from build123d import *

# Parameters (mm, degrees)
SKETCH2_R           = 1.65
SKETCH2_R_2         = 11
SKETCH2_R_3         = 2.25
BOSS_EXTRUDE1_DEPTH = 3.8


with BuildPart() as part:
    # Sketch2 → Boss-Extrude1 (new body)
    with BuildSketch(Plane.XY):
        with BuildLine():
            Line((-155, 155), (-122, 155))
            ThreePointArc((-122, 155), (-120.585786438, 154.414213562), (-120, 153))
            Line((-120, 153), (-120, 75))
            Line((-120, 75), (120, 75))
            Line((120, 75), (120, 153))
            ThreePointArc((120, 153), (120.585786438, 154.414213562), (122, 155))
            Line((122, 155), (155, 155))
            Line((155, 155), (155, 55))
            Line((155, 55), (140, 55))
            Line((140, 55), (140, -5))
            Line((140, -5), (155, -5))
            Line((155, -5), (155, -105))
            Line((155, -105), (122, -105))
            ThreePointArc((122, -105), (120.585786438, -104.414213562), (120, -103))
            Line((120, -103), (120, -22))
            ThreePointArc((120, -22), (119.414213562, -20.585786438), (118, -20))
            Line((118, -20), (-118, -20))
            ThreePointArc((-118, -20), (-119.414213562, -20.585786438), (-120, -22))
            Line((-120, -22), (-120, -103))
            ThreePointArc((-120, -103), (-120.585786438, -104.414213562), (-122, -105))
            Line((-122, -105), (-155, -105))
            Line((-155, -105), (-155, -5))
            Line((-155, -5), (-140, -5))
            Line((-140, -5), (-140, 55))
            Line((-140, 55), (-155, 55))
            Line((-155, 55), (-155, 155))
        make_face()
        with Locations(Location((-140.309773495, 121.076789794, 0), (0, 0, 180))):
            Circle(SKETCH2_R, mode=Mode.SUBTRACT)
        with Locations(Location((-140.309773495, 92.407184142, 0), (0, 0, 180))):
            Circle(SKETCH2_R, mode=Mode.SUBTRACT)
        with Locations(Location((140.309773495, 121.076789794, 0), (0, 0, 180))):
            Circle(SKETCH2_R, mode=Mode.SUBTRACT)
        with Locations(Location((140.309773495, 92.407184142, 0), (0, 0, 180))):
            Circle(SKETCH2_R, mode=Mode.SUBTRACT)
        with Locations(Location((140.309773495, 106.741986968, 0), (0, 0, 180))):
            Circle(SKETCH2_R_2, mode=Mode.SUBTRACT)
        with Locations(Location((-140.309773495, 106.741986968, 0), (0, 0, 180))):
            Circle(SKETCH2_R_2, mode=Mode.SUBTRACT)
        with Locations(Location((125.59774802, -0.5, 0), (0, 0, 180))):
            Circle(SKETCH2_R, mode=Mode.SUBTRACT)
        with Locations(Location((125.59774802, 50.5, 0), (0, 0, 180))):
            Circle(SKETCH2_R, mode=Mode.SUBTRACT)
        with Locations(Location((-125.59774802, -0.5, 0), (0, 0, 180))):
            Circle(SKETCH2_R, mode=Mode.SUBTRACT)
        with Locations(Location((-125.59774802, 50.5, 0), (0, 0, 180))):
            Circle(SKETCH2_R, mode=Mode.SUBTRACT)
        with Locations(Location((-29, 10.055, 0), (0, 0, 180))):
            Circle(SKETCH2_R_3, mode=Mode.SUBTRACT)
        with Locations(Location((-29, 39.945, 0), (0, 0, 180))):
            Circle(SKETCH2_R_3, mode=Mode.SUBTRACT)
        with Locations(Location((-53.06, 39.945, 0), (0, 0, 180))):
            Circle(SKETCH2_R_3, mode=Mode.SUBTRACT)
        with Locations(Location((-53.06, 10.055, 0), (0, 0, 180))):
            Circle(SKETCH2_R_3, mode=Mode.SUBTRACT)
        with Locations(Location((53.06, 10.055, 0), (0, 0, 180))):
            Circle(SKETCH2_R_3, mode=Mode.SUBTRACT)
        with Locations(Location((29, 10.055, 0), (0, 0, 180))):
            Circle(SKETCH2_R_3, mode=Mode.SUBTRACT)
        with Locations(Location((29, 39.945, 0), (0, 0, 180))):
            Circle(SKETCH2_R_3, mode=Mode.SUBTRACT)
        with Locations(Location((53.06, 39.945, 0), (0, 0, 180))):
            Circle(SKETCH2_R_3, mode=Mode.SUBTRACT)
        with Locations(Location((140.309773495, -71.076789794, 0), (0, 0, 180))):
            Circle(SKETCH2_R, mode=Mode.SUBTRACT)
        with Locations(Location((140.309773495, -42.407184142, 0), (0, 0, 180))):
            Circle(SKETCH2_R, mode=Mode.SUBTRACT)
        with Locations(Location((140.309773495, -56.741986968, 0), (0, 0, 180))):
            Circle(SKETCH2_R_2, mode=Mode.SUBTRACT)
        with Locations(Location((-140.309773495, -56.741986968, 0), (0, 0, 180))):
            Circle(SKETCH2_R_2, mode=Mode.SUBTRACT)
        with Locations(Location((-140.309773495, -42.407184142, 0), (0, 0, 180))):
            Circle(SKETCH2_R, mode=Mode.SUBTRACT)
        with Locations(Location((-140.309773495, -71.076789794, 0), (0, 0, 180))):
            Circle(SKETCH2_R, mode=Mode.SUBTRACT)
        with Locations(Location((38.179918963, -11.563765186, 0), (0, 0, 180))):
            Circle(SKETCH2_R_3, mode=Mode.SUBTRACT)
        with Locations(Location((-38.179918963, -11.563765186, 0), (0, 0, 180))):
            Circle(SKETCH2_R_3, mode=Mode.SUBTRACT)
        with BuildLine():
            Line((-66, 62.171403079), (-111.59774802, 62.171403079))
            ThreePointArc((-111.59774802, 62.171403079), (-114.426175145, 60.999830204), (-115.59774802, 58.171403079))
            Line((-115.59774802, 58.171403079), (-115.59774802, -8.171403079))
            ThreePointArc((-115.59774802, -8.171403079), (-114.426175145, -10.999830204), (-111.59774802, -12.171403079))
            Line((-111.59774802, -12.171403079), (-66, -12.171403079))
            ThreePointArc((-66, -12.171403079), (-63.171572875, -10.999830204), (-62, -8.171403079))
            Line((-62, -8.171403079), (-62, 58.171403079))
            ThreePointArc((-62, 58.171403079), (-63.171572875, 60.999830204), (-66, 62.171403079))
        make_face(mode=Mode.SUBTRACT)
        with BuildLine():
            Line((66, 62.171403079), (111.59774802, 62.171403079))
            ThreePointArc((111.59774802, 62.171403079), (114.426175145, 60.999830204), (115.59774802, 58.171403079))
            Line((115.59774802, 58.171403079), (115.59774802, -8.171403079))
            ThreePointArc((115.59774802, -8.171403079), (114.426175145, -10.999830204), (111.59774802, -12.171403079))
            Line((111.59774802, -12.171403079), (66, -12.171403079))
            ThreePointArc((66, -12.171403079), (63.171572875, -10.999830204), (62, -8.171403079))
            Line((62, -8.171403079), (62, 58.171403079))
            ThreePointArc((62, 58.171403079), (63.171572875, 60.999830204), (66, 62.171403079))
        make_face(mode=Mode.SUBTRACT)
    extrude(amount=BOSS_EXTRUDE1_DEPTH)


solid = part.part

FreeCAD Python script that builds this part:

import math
import FreeCAD as App
import Part
import Sketcher
Q = App.Units.Quantity

doc = App.newDocument("Part")
body = doc.addObject("PartDesign::Body", "Body")

# Sketch on XY plane
sketch1 = body.newObject("Sketcher::SketchObject", "Sketch")
sketch1.AttachmentSupport = (doc.getObject("XY_Plane"), [""])
sketch1.MapMode = "FlatFace"
sketch1.addGeometry([
    Part.LineSegment(App.Vector(-122, 155, 0), App.Vector(-155, 155, 0)),  # 0
    Part.LineSegment(App.Vector(-155, 155, 0), App.Vector(-155, 55, 0)),  # 1
    Part.LineSegment(App.Vector(-155, 55, 0), App.Vector(-140, 55, 0)),  # 2
    Part.LineSegment(App.Vector(-140, 55, 0), App.Vector(-140, -5, 0)),  # 3
    Part.LineSegment(App.Vector(-140, -5, 0), App.Vector(-155, -5, 0)),  # 4
    Part.LineSegment(App.Vector(-155, -5, 0), App.Vector(-155, -105, 0)),  # 5
    Part.LineSegment(App.Vector(-155, -105, 0), App.Vector(-122, -105, 0)),  # 6
    Part.ArcOfCircle(Part.Circle(App.Vector(-122, -103, 0), App.Vector(0, 0, 1), 2), math.radians(-90), math.radians(0)),  # 7
    Part.LineSegment(App.Vector(-120, -103, 0), App.Vector(-120, -22, 0)),  # 8
    Part.ArcOfCircle(Part.Circle(App.Vector(-118, -22, 0), App.Vector(0, 0, 1), 2), math.radians(90), math.radians(180)),  # 9
    Part.LineSegment(App.Vector(-118, -20, 0), App.Vector(118, -20, 0)),  # 10
    Part.ArcOfCircle(Part.Circle(App.Vector(118, -22, 0), App.Vector(0, 0, 1), 2), math.radians(0), math.radians(90)),  # 11
    Part.LineSegment(App.Vector(120, -22, 0), App.Vector(120, -103, 0)),  # 12
    Part.ArcOfCircle(Part.Circle(App.Vector(122, -103, 0), App.Vector(0, 0, 1), 2), math.radians(-180), math.radians(-90)),  # 13
    Part.LineSegment(App.Vector(122, -105, 0), App.Vector(155, -105, 0)),  # 14
    Part.LineSegment(App.Vector(155, -105, 0), App.Vector(155, -5, 0)),  # 15
    Part.LineSegment(App.Vector(155, -5, 0), App.Vector(140, -5, 0)),  # 16
    Part.LineSegment(App.Vector(140, -5, 0), App.Vector(140, 55, 0)),  # 17
    Part.LineSegment(App.Vector(140, 55, 0), App.Vector(155, 55, 0)),  # 18
    Part.LineSegment(App.Vector(155, 55, 0), App.Vector(155, 155, 0)),  # 19
    Part.LineSegment(App.Vector(155, 155, 0), App.Vector(122, 155, 0)),  # 20
    Part.ArcOfCircle(Part.Circle(App.Vector(122, 153, 0), App.Vector(0, 0, 1), 2), math.radians(90), math.radians(180)),  # 21
    Part.LineSegment(App.Vector(120, 153, 0), App.Vector(120, 75, 0)),  # 22
    Part.LineSegment(App.Vector(120, 75, 0), App.Vector(-120, 75, 0)),  # 23
    Part.LineSegment(App.Vector(-120, 75, 0), App.Vector(-120, 153, 0)),  # 24
    Part.ArcOfCircle(Part.Circle(App.Vector(-122, 153, 0), App.Vector(0, 0, 1), 2), math.radians(0), math.radians(90)),  # 25
    Part.Circle(App.Vector(140.3, -71.1, 0), App.Vector(0, 0, 1), 1.6),  # 26
    Part.Circle(App.Vector(140.3, -56.7, 0), App.Vector(0, 0, 1), 11),  # 27
    Part.Circle(App.Vector(140.3, -42.4, 0), App.Vector(0, 0, 1), 1.6),  # 28
    Part.Circle(App.Vector(125.6, -0.5, 0), App.Vector(0, 0, 1), 1.6),  # 29
    Part.Circle(App.Vector(38.2, -11.6, 0), App.Vector(0, 0, 1), 2.2),  # 30
    Part.Circle(App.Vector(53.1, 10.1, 0), App.Vector(0, 0, 1), 2.2),  # 31
    Part.Circle(App.Vector(29, 10.1, 0), App.Vector(0, 0, 1), 2.2),  # 32
    Part.Circle(App.Vector(-140.3, -71.1, 0), App.Vector(0, 0, 1), 1.6),  # 33
    Part.Circle(App.Vector(-140.3, -56.7, 0), App.Vector(0, 0, 1), 11),  # 34
    Part.Circle(App.Vector(-140.3, -42.4, 0), App.Vector(0, 0, 1), 1.6),  # 35
    Part.Circle(App.Vector(-38.2, -11.6, 0), App.Vector(0, 0, 1), 2.2),  # 36
    Part.Circle(App.Vector(-29, 10.1, 0), App.Vector(0, 0, 1), 2.2),  # 37
    Part.Circle(App.Vector(-53.1, 10.1, 0), App.Vector(0, 0, 1), 2.2),  # 38
    Part.Circle(App.Vector(-125.6, -0.5, 0), App.Vector(0, 0, 1), 1.6),  # 39
    Part.LineSegment(App.Vector(66, 62.2, 0), App.Vector(111.6, 62.2, 0)),  # 40
    Part.ArcOfCircle(Part.Circle(App.Vector(111.6, 58.2, 0), App.Vector(0, 0, 1), 4), math.radians(0), math.radians(90)),  # 41
    Part.LineSegment(App.Vector(115.6, 58.2, 0), App.Vector(115.6, -8.2, 0)),  # 42
    Part.ArcOfCircle(Part.Circle(App.Vector(111.6, -8.2, 0), App.Vector(0, 0, 1), 4), math.radians(-90), math.radians(0)),  # 43
    Part.LineSegment(App.Vector(111.6, -12.2, 0), App.Vector(66, -12.2, 0)),  # 44
    Part.ArcOfCircle(Part.Circle(App.Vector(66, -8.2, 0), App.Vector(0, 0, 1), 4), math.radians(180), math.radians(270)),  # 45
    Part.LineSegment(App.Vector(62, -8.2, 0), App.Vector(62, 58.2, 0)),  # 46
    Part.ArcOfCircle(Part.Circle(App.Vector(66, 58.2, 0), App.Vector(0, 0, 1), 4), math.radians(90), math.radians(180)),  # 47
    Part.Circle(App.Vector(125.6, 50.5, 0), App.Vector(0, 0, 1), 1.6),  # 48
    Part.Circle(App.Vector(53.1, 39.9, 0), App.Vector(0, 0, 1), 2.2),  # 49
    Part.Circle(App.Vector(29, 39.9, 0), App.Vector(0, 0, 1), 2.2),  # 50
    Part.Circle(App.Vector(140.3, 92.4, 0), App.Vector(0, 0, 1), 1.6),  # 51
    Part.Circle(App.Vector(140.3, 106.7, 0), App.Vector(0, 0, 1), 11),  # 52
    Part.Circle(App.Vector(140.3, 121.1, 0), App.Vector(0, 0, 1), 1.6),  # 53
    Part.Circle(App.Vector(-29, 39.9, 0), App.Vector(0, 0, 1), 2.2),  # 54
    Part.Circle(App.Vector(-53.1, 39.9, 0), App.Vector(0, 0, 1), 2.2),  # 55
    Part.ArcOfCircle(Part.Circle(App.Vector(-66, 58.2, 0), App.Vector(0, 0, 1), 4), math.radians(0), math.radians(90)),  # 56
    Part.LineSegment(App.Vector(-62, 58.2, 0), App.Vector(-62, -8.2, 0)),  # 57
    Part.ArcOfCircle(Part.Circle(App.Vector(-66, -8.2, 0), App.Vector(0, 0, 1), 4), math.radians(-90), math.radians(0)),  # 58
    Part.LineSegment(App.Vector(-66, -12.2, 0), App.Vector(-111.6, -12.2, 0)),  # 59
    Part.ArcOfCircle(Part.Circle(App.Vector(-111.6, -8.2, 0), App.Vector(0, 0, 1), 4), math.radians(180), math.radians(270)),  # 60
    Part.LineSegment(App.Vector(-115.6, -8.2, 0), App.Vector(-115.6, 58.2, 0)),  # 61
    Part.ArcOfCircle(Part.Circle(App.Vector(-111.6, 58.2, 0), App.Vector(0, 0, 1), 4), math.radians(90), math.radians(180)),  # 62
    Part.LineSegment(App.Vector(-111.6, 62.2, 0), App.Vector(-66, 62.2, 0)),  # 63
    Part.Circle(App.Vector(-125.6, 50.5, 0), App.Vector(0, 0, 1), 1.6),  # 64
    Part.Circle(App.Vector(-140.3, 92.4, 0), App.Vector(0, 0, 1), 1.6),  # 65
    Part.Circle(App.Vector(-140.3, 106.7, 0), App.Vector(0, 0, 1), 11),  # 66
    Part.Circle(App.Vector(-140.3, 121.1, 0), App.Vector(0, 0, 1), 1.6),  # 67
], False)
sketch1.addConstraint([
    Sketcher.Constraint("Coincident", 0, 2, 1, 1),
    Sketcher.Constraint("Coincident", 1, 2, 2, 1),
    Sketcher.Constraint("Coincident", 2, 2, 3, 1),
    Sketcher.Constraint("Coincident", 3, 2, 4, 1),
    Sketcher.Constraint("Coincident", 4, 2, 5, 1),
    Sketcher.Constraint("Coincident", 5, 2, 6, 1),
    Sketcher.Constraint("Tangent", 6, 2, 7, 1),
    Sketcher.Constraint("Tangent", 7, 2, 8, 1),
    Sketcher.Constraint("Tangent", 8, 2, 9, 2),
    Sketcher.Constraint("Tangent", 9, 1, 10, 1),
    Sketcher.Constraint("Tangent", 10, 2, 11, 2),
    Sketcher.Constraint("Tangent", 11, 1, 12, 1),
    Sketcher.Constraint("Tangent", 12, 2, 13, 1),
    Sketcher.Constraint("Tangent", 13, 2, 14, 1),
    Sketcher.Constraint("Coincident", 14, 2, 15, 1),
    Sketcher.Constraint("Coincident", 15, 2, 16, 1),
    Sketcher.Constraint("Coincident", 16, 2, 17, 1),
    Sketcher.Constraint("Coincident", 17, 2, 18, 1),
    Sketcher.Constraint("Coincident", 18, 2, 19, 1),
    Sketcher.Constraint("Coincident", 19, 2, 20, 1),
    Sketcher.Constraint("Tangent", 20, 2, 21, 1),
    Sketcher.Constraint("Tangent", 21, 2, 22, 1),
    Sketcher.Constraint("Coincident", 22, 2, 23, 1),
    Sketcher.Constraint("Coincident", 23, 2, 24, 1),
    Sketcher.Constraint("Tangent", 24, 2, 25, 1),
    Sketcher.Constraint("Tangent", 25, 2, 0, 1),
    Sketcher.Constraint("Tangent", 40, 2, 41, 2),
    Sketcher.Constraint("Tangent", 41, 1, 42, 1),
    Sketcher.Constraint("Tangent", 42, 2, 43, 2),
    Sketcher.Constraint("Tangent", 43, 1, 44, 1),
    Sketcher.Constraint("Tangent", 44, 2, 45, 2),
    Sketcher.Constraint("Tangent", 45, 1, 46, 1),
    Sketcher.Constraint("Tangent", 46, 2, 47, 2),
    Sketcher.Constraint("Tangent", 47, 1, 40, 1),
    Sketcher.Constraint("Tangent", 56, 1, 57, 1),
    Sketcher.Constraint("Tangent", 57, 2, 58, 2),
    Sketcher.Constraint("Tangent", 58, 1, 59, 1),
    Sketcher.Constraint("Tangent", 59, 2, 60, 2),
    Sketcher.Constraint("Tangent", 60, 1, 61, 1),
    Sketcher.Constraint("Tangent", 61, 2, 62, 2),
    Sketcher.Constraint("Tangent", 62, 1, 63, 1),
    Sketcher.Constraint("Tangent", 63, 2, 56, 2),
    Sketcher.Constraint("Horizontal", 0),
    Sketcher.Constraint("Vertical", 1),
    Sketcher.Constraint("Horizontal", 2),
    Sketcher.Constraint("Vertical", 3),
    Sketcher.Constraint("Horizontal", 4),
    Sketcher.Constraint("Vertical", 5),
    Sketcher.Constraint("Horizontal", 6),
    Sketcher.Constraint("Vertical", 8),
    Sketcher.Constraint("Horizontal", 10),
    Sketcher.Constraint("Vertical", 12),
    Sketcher.Constraint("Horizontal", 14),
    Sketcher.Constraint("Vertical", 15),
    Sketcher.Constraint("Horizontal", 16),
    Sketcher.Constraint("Vertical", 17),
    Sketcher.Constraint("Horizontal", 18),
    Sketcher.Constraint("Vertical", 19),
    Sketcher.Constraint("Horizontal", 20),
    Sketcher.Constraint("Vertical", 22),
    Sketcher.Constraint("Horizontal", 23),
    Sketcher.Constraint("Vertical", 24),
    Sketcher.Constraint("Horizontal", 40),
    Sketcher.Constraint("Vertical", 42),
    Sketcher.Constraint("Horizontal", 44),
    Sketcher.Constraint("Vertical", 46),
    Sketcher.Constraint("Vertical", 57),
    Sketcher.Constraint("Horizontal", 59),
    Sketcher.Constraint("Vertical", 61),
    Sketcher.Constraint("Horizontal", 63),
    Sketcher.Constraint("Equal", 7, 9),
    Sketcher.Constraint("Equal", 9, 11),
    Sketcher.Constraint("Equal", 11, 13),
    Sketcher.Constraint("Equal", 13, 21),
    Sketcher.Constraint("Equal", 21, 25),
    Sketcher.Constraint("Equal", 26, 28),
    Sketcher.Constraint("Equal", 28, 29),
    Sketcher.Constraint("Equal", 30, 31),
    Sketcher.Constraint("Equal", 31, 32),
    Sketcher.Constraint("Equal", 29, 33),
    Sketcher.Constraint("Equal", 27, 34),
    Sketcher.Constraint("Equal", 33, 35),
    Sketcher.Constraint("Equal", 32, 36),
    Sketcher.Constraint("Equal", 36, 37),
    Sketcher.Constraint("Equal", 37, 38),
    Sketcher.Constraint("Equal", 35, 39),
    Sketcher.Constraint("Equal", 41, 43),
    Sketcher.Constraint("Equal", 43, 45),
    Sketcher.Constraint("Equal", 45, 47),
    Sketcher.Constraint("Equal", 39, 48),
    Sketcher.Constraint("Equal", 38, 49),
    Sketcher.Constraint("Equal", 49, 50),
    Sketcher.Constraint("Equal", 48, 51),
    Sketcher.Constraint("Equal", 34, 52),
    Sketcher.Constraint("Equal", 51, 53),
    Sketcher.Constraint("Equal", 50, 54),
    Sketcher.Constraint("Equal", 54, 55),
    Sketcher.Constraint("Equal", 47, 56),
    Sketcher.Constraint("Equal", 56, 58),
    Sketcher.Constraint("Equal", 58, 60),
    Sketcher.Constraint("Equal", 60, 62),
    Sketcher.Constraint("Equal", 53, 64),
    Sketcher.Constraint("Equal", 64, 65),
    Sketcher.Constraint("Equal", 52, 66),
    Sketcher.Constraint("Equal", 65, 67),
    Sketcher.Constraint("Symmetric", 7, 3, 13, 3, -2),
    Sketcher.Constraint("Symmetric", 21, 3, 25, 3, -2),
    Sketcher.Constraint("Symmetric", 26, 3, 33, 3, -2),
    Sketcher.Constraint("Symmetric", 27, 3, 34, 3, -2),
    Sketcher.Constraint("Symmetric", 28, 3, 35, 3, -2),
    Sketcher.Constraint("Symmetric", 30, 3, 36, 3, -2),
    Sketcher.Constraint("Symmetric", 32, 3, 37, 3, -2),
    Sketcher.Constraint("Symmetric", 31, 3, 38, 3, -2),
    Sketcher.Constraint("Symmetric", 29, 3, 39, 3, -2),
    Sketcher.Constraint("Symmetric", 50, 3, 54, 3, -2),
    Sketcher.Constraint("Symmetric", 49, 3, 55, 3, -2),
    Sketcher.Constraint("Symmetric", 47, 3, 56, 3, -2),
    Sketcher.Constraint("Symmetric", 43, 3, 60, 3, -2),
    Sketcher.Constraint("Symmetric", 48, 3, 64, 3, -2),
    Sketcher.Constraint("Symmetric", 51, 3, 65, 3, -2),
    Sketcher.Constraint("Symmetric", 52, 3, 66, 3, -2),
    Sketcher.Constraint("Symmetric", 53, 3, 67, 3, -2),
    Sketcher.Constraint("Symmetric", 4, 2, 15, 2, -2),
    Sketcher.Constraint("Symmetric", 2, 2, 17, 2, -2),
    Sketcher.Constraint("Horizontal", 31, 3, 32, 3),
    Sketcher.Constraint("Horizontal", 49, 3, 50, 3),
    Sketcher.Constraint("Vertical", 13, 3, 21, 3),
    Sketcher.Constraint("Vertical", 26, 3, 27, 3),
    Sketcher.Constraint("Vertical", 27, 3, 28, 3),
    Sketcher.Constraint("Vertical", 29, 3, 48, 3),
    Sketcher.Constraint("Vertical", 31, 3, 49, 3),
    Sketcher.Constraint("Vertical", 32, 3, 50, 3),
    Sketcher.Constraint("Vertical", 28, 3, 51, 3),
    Sketcher.Constraint("Vertical", 51, 3, 52, 3),
    Sketcher.Constraint("Vertical", 52, 3, 53, 3),
    Sketcher.Constraint("Vertical", 1, 2, 4, 2),
    Sketcher.Constraint("Vertical", 15, 2, 18, 2),
    Sketcher.Constraint("Equal", 1, 5),
    Sketcher.Constraint("Diameter", 27, Q("22 mm")),
    Sketcher.Constraint("Radius", 7, Q("2 mm")),
    Sketcher.Constraint("Radius", 41, Q("4 mm")),
    Sketcher.Constraint("Diameter", 26, Q("3.3 mm")),
    Sketcher.Constraint("Diameter", 30, Q("4.5 mm")),
    Sketcher.Constraint("DistanceX", 0, 2, 0, 1, Q("33 mm")),
    Sketcher.Constraint("DistanceX", 2, 1, 2, 2, Q("15 mm")),
    Sketcher.Constraint("DistanceX", 10, 1, 10, 2, Q("236 mm")),
    Sketcher.Constraint("DistanceY", 1, 2, 1, 1, Q("100 mm")),
    Sketcher.Constraint("DistanceY", 3, 2, 3, 1, Q("60 mm")),
    Sketcher.Constraint("DistanceY", 8, 1, 8, 2, Q("81 mm")),
    Sketcher.Constraint("DistanceY", 22, 2, 22, 1, Q("78 mm")),
    Sketcher.Constraint("DistanceY", 7, 3, -1, 1, Q("103 mm")),
    Sketcher.Constraint("DistanceX", -1, 1, 32, 3, Q("29 mm")),
    Sketcher.Constraint("DistanceX", -1, 1, 45, 3, Q("66 mm")),
    Sketcher.Constraint("DistanceY", 29, 3, -1, 1, Q("0.5 mm")),
    Sketcher.Constraint("DistanceY", -1, 1, 48, 3, Q("50.5 mm")),
    Sketcher.Constraint("DistanceX", -1, 1, 31, 3, Q("53.06 mm")),
    Sketcher.Constraint("DistanceY", -1, 1, 31, 3, Q("10.055 mm")),
    Sketcher.Constraint("DistanceY", -1, 1, 49, 3, Q("39.945 mm")),
    Sketcher.Constraint("DistanceX", 40, 1, 40, 2, Q("45.597748 mm")),
    Sketcher.Constraint("DistanceY", 42, 2, 42, 1, Q("66.342806 mm")),
    Sketcher.Constraint("DistanceY", 26, 3, -1, 1, Q("71.07679 mm")),
    Sketcher.Constraint("DistanceX", -1, 1, 29, 3, Q("125.597748 mm")),
    Sketcher.Constraint("DistanceX", -1, 1, 30, 3, Q("38.179919 mm")),
    Sketcher.Constraint("DistanceY", -1, 1, 53, 3, Q("121.07679 mm")),
    Sketcher.Constraint("DistanceX", -1, 1, 26, 3, Q("140.309773 mm")),
    Sketcher.Constraint("DistanceY", 27, 3, -1, 1, Q("56.741987 mm")),
    Sketcher.Constraint("DistanceY", 28, 3, -1, 1, Q("42.407184 mm")),
    Sketcher.Constraint("DistanceY", 30, 3, -1, 1, Q("11.563765 mm")),
    Sketcher.Constraint("DistanceY", -1, 1, 41, 3, Q("58.171403 mm")),
    Sketcher.Constraint("DistanceY", -1, 1, 51, 3, Q("92.407184 mm")),
    Sketcher.Constraint("DistanceY", -1, 1, 52, 3, Q("106.741987 mm")),
])
pad1 = body.newObject("PartDesign::Pad", "Pad")
pad1.Profile = sketch1
pad1.Length = 3.8

doc.recompute()
